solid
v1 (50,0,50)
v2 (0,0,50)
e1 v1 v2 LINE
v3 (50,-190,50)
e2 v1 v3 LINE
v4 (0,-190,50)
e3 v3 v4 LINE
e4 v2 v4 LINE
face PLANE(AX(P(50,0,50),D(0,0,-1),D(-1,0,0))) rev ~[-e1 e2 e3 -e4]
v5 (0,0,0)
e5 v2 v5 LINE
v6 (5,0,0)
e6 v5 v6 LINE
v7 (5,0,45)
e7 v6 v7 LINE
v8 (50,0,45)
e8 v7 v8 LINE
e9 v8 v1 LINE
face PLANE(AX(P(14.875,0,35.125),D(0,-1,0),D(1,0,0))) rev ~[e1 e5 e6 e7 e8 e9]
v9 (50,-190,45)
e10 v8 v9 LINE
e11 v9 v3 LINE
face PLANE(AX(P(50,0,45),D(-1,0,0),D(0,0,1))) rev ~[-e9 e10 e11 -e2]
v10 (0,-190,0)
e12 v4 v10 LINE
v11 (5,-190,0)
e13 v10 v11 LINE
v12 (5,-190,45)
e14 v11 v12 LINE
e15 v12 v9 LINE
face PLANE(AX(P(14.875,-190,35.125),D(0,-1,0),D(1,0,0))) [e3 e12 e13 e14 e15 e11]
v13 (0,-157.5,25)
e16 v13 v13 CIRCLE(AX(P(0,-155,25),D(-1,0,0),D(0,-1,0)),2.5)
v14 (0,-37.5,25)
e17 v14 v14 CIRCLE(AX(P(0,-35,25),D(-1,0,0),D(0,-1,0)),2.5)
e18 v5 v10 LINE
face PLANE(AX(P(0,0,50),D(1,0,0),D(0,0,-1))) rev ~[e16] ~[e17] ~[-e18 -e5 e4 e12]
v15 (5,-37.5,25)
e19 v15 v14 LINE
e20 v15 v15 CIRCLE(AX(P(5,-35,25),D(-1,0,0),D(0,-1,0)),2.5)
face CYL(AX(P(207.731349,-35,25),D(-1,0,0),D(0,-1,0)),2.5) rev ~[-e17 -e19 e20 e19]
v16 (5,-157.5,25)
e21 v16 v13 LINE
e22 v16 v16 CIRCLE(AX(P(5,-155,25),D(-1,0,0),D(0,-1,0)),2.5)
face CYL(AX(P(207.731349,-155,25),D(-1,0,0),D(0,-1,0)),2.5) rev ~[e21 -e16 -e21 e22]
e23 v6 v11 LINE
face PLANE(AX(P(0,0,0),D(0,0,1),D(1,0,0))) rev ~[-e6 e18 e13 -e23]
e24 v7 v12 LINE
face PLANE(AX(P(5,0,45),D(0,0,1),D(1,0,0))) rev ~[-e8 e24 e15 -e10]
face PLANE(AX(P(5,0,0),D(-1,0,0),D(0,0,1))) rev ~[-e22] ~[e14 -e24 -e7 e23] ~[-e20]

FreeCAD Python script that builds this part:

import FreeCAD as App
import Part
import Sketcher

V = App.Vector
Q = App.Units.Quantity


def add_polygon(sketch, points):
    """Adds a closed chain of lines whose ends are joined by coincident constraints."""
    first, n = sketch.GeometryCount, len(points)
    for a, b in zip(points, points[1:] + points[:1]):
        sketch.addGeometry(Part.LineSegment(App.Vector(*a, 0), App.Vector(*b, 0)), False)
    for i in range(n):
        sketch.addConstraint(Sketcher.Constraint("Coincident", first + i, 2, first + (i + 1) % n, 1))

doc = App.newDocument("Part")
body = doc.addObject("PartDesign::Body", "Body")

sketch1 = body.newObject("Sketcher::SketchObject", "Sketch")
sketch1.AttachmentSupport = (doc.getObject("XZ_Plane"), [""])
sketch1.MapMode = "FlatFace"
add_polygon(sketch1, [(0, 50), (0, 0), (5, 0), (5, 45), (50, 45), (50, 50)])
sketch1.addConstraint([
    Sketcher.Constraint("Vertical", 0),
    Sketcher.Constraint("Horizontal", 1),
    Sketcher.Constraint("Vertical", 2),
    Sketcher.Constraint("Horizontal", 3),
    Sketcher.Constraint("Vertical", 4),
    Sketcher.Constraint("Horizontal", 5),
    Sketcher.Constraint("Coincident", 0, 2, -1, 1),
    Sketcher.Constraint("Equal", 5, 0),
    Sketcher.Constraint("Equal", 3, 2),
    Sketcher.Constraint("DistanceX", 1, 1, 1, 2, Q("5 mm")),
    Sketcher.Constraint("DistanceX", 3, 1, 3, 2, Q("45 mm")),
])
pad1 = body.newObject("PartDesign::Pad", "Pad")
pad1.Profile = sketch1
pad1.Length = 190

sketch2 = body.newObject("Sketcher::SketchObject", "Sketch001")
sketch2.AttachmentSupport = (doc.getObject("YZ_Plane"), [""])
sketch2.MapMode = "FlatFace"
sketch2.AttachmentOffset = App.Placement(V(0, 0, 5), App.Rotation())
sketch2.addGeometry([
    Part.Circle(V(-155, 25, 0), V(0, 0, 1), 2.5),
    Part.Circle(V(-35, 25, 0), V(0, 0, 1), 2.5),
], False)
sketch2.addConstraint([
    Sketcher.Constraint("Equal", 0, 1),
    Sketcher.Constraint("Horizontal", 0, 3, 1, 3),
    Sketcher.Constraint("Diameter", 0, Q("5 mm")),
    Sketcher.Constraint("DistanceX", 0, 3, -1, 1, Q("155 mm")),
    Sketcher.Constraint("DistanceY", -1, 1, 0, 3, Q("25 mm")),
    Sketcher.Constraint("DistanceX", 1, 3, -1, 1, Q("35 mm")),
])
doc.recompute()
hole = body.newObject("PartDesign::Hole", "Hole")
hole.Profile = sketch2
hole.ThreadType = "None"
hole.Diameter = 5
hole.DepthType = "ThroughAll"

doc.recompute()
